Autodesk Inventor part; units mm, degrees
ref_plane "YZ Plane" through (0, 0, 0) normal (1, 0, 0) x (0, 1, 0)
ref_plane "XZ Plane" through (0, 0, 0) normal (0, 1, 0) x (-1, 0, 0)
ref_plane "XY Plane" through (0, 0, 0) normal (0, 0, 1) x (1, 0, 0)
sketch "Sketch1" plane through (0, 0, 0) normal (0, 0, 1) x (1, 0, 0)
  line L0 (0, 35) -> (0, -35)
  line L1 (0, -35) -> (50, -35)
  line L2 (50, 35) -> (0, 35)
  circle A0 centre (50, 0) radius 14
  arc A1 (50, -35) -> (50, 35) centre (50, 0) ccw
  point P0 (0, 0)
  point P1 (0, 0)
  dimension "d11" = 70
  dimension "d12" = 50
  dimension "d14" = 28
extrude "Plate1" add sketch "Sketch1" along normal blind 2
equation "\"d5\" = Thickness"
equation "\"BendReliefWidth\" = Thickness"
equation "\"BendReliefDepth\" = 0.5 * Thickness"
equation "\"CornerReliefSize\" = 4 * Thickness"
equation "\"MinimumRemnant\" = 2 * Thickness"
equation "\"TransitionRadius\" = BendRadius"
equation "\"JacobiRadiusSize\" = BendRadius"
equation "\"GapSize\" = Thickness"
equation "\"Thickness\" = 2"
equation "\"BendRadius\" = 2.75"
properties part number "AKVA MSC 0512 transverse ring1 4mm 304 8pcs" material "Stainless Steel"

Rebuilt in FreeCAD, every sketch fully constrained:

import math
import FreeCAD as App
import Part
import Sketcher

doc = App.newDocument("Part")
params = doc.addObject("Spreadsheet::Sheet", "Params")
for row, (alias, value) in enumerate([
    ("sketch1_diameter", "28 mm"),
    ("sketch1_radius", "35 mm"),
    ("sketch1_width", "50 mm"),
    ("pad1_length", "2 mm"),
], start=1):
    params.set(f"A{row}", alias)
    params.set(f"B{row}", "=" + value)
    params.setAlias(f"B{row}", alias)

body = doc.addObject("PartDesign::Body", "Body")

# Sketch on XY plane
sketch1 = doc.addObject("Sketcher::SketchObject", "Sketch")
body.addObject(sketch1)
sketch1.AttachmentSupport = (doc.XY_Plane, [""])
sketch1.MapMode = "FlatFace"
sketch1.addGeometry(Part.LineSegment(App.Vector(50, 35, 0), App.Vector(0, 35, 0)), False)
sketch1.addGeometry(Part.LineSegment(App.Vector(0, 35, 0), App.Vector(0, -35, 0)), False)
sketch1.addGeometry(Part.LineSegment(App.Vector(0, -35, 0), App.Vector(50, -35, 0)), False)
sketch1.addGeometry(Part.ArcOfCircle(Part.Circle(App.Vector(50, 0, 0), App.Vector(0, 0, 1), 35), math.radians(-90), math.radians(90)), False)
sketch1.addGeometry(Part.Circle(App.Vector(50, 0, 0), App.Vector(0, 0, 1), 14), False)
sketch1.addConstraint(Sketcher.Constraint("Coincident", 0, 2, 1, 1))
sketch1.addConstraint(Sketcher.Constraint("Coincident", 1, 2, 2, 1))
sketch1.addConstraint(Sketcher.Constraint("Tangent", 2, 2, 3, 1))
sketch1.addConstraint(Sketcher.Constraint("Tangent", 3, 2, 0, 1))
sketch1.addConstraint(Sketcher.Constraint("Horizontal", 0))
sketch1.addConstraint(Sketcher.Constraint("Vertical", 1))
sketch1.addConstraint(Sketcher.Constraint("Horizontal", 2))
sketch1.addConstraint(Sketcher.Constraint("Coincident", 4, 3, 3, 3))
sketch1.addConstraint(Sketcher.Constraint("Symmetric", 0, 2, 1, 2, -1, 1))
sketch1.addConstraint(Sketcher.Constraint("Diameter", 4, 28.0))
sketch1.addConstraint(Sketcher.Constraint("Radius", 3, 35.0))
sketch1.addConstraint(Sketcher.Constraint("DistanceX", 0, 2, 0, 1, 50.0))
sketch1.setExpression("Constraints[9]", "Params.sketch1_diameter")
sketch1.setExpression("Constraints[10]", "Params.sketch1_radius")
sketch1.setExpression("Constraints[11]", "Params.sketch1_width")
pad1 = doc.addObject("PartDesign::Pad", "Pad")
body.addObject(pad1)
pad1.Profile = sketch1
pad1.setExpression("Length", "Params.pad1_length")

doc.recompute()
